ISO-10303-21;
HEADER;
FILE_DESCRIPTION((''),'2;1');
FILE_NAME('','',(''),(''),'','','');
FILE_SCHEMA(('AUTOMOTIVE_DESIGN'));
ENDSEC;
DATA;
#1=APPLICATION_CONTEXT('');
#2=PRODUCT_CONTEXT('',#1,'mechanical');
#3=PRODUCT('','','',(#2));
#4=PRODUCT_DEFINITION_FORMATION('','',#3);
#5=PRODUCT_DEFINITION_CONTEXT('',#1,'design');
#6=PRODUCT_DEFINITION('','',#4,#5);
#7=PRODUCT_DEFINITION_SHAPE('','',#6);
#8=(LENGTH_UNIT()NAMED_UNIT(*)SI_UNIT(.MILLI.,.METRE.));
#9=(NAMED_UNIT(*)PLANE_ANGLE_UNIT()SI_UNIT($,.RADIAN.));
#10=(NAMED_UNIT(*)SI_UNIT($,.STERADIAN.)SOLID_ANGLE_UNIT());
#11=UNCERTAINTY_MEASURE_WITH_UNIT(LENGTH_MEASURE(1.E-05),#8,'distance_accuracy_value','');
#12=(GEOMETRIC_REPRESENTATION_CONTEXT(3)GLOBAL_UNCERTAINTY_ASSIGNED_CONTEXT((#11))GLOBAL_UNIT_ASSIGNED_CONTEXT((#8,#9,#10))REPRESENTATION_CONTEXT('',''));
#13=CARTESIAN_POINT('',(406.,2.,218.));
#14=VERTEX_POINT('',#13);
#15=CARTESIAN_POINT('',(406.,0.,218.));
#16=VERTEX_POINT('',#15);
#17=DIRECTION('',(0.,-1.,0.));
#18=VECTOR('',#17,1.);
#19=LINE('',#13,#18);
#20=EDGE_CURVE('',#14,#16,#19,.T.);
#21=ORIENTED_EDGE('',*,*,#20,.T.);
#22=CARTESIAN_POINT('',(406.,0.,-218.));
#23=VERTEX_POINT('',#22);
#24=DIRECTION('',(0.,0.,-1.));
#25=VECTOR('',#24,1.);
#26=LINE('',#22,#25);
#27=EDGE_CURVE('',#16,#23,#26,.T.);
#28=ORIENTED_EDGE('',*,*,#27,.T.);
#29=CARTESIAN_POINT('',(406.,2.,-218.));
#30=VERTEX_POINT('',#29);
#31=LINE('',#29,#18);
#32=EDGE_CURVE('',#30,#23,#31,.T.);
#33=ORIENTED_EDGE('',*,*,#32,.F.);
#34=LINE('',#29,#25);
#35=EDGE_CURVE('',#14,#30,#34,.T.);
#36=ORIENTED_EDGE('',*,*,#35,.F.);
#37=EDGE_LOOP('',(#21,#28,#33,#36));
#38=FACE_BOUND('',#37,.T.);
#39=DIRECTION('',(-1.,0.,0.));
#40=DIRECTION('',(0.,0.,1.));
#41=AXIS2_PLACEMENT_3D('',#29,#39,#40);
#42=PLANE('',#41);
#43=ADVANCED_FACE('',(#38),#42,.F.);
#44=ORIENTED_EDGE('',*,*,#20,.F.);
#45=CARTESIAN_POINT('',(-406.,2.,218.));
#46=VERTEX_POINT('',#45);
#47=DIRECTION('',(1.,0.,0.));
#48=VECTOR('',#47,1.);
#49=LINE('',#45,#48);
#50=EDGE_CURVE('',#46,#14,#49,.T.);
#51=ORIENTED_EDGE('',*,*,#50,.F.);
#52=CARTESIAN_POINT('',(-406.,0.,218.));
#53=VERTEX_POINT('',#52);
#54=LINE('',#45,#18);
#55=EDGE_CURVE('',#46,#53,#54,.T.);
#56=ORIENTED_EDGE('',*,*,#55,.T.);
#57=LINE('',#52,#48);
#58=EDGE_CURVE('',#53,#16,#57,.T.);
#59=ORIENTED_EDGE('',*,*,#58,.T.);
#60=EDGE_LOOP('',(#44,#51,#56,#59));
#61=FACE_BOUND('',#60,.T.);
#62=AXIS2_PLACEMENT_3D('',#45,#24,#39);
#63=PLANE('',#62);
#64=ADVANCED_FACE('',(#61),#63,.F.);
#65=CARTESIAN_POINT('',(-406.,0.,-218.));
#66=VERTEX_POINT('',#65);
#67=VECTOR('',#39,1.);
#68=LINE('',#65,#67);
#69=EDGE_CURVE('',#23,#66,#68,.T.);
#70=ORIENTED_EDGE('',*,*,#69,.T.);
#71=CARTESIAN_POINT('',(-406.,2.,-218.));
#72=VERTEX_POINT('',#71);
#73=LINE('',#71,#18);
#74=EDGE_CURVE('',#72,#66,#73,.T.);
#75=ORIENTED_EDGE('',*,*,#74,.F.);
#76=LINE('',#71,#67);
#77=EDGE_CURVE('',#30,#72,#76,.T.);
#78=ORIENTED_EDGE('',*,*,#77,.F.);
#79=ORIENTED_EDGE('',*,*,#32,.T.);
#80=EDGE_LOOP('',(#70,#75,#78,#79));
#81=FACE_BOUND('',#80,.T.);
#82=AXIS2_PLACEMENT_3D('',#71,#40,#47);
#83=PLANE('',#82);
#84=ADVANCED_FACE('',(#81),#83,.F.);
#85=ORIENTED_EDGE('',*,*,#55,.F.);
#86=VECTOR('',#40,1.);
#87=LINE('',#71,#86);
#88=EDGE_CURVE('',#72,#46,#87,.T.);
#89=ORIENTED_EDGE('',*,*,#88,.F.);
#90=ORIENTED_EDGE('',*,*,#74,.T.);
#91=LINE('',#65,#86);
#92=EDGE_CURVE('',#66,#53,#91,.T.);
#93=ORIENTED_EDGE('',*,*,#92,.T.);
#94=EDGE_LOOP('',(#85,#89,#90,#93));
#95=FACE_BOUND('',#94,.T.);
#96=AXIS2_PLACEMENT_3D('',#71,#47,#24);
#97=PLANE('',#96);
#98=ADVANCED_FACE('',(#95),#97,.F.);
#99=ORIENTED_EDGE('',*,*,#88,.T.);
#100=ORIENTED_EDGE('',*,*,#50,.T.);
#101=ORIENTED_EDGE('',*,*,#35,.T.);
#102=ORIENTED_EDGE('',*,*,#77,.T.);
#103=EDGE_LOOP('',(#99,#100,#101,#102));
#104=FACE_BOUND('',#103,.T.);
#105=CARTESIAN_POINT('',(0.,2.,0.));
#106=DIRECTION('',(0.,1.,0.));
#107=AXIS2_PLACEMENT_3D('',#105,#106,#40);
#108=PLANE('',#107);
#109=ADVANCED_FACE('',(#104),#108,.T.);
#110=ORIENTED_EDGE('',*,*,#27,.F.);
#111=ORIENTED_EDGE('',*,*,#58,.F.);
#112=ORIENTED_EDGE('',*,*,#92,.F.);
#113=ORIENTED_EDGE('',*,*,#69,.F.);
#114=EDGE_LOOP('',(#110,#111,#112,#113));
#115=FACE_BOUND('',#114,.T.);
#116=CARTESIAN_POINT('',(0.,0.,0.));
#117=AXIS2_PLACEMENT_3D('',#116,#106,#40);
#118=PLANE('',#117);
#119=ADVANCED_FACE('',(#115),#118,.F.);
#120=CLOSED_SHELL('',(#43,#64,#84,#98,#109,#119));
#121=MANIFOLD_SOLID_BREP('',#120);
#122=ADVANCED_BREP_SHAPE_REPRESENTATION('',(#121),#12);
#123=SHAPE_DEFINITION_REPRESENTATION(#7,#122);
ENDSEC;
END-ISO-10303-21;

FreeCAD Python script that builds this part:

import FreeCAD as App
import Part
import Sketcher
from FreeCAD import Vector


def add_polygon(sketch, points):
    """Adds a closed chain of lines whose ends are joined by coincident constraints."""
    first, n = sketch.GeometryCount, len(points)
    for a, b in zip(points, points[1:] + points[:1]):
        sketch.addGeometry(Part.LineSegment(App.Vector(*a, 0), App.Vector(*b, 0)), False)
    for i in range(n):
        sketch.addConstraint(Sketcher.Constraint("Coincident", first + i, 2, first + (i + 1) % n, 1))

doc = App.newDocument("Part")
body = doc.addObject("PartDesign::Body", "Body")

# Sketch on XZ plane
sketch1 = body.newObject("Sketcher::SketchObject", "Sketch")
sketch1.AttachmentSupport = (doc.getObject("XZ_Plane"), [""])
sketch1.MapMode = "FlatFace"
add_polygon(sketch1, [(-406, -218), (-406, 218), (406, 218), (406, -218)])  # lines 0-3
sketch1.addConstraint([
    Sketcher.Constraint("Vertical", 0),
    Sketcher.Constraint("Horizontal", 1),
    Sketcher.Constraint("Vertical", 2),
    Sketcher.Constraint("Horizontal", 3),
    Sketcher.Constraint("Symmetric", 0, 2, 2, 2, -1, 1),
    Sketcher.Constraint("DistanceX", 1, 1, 1, 2, 812.0),
    Sketcher.Constraint("DistanceY", 0, 1, 0, 2, 436.0),
])
pad1 = body.newObject("PartDesign::Pad", "Pad")
pad1.Profile = sketch1
pad1.Length = 2
pad1.Reversed = True

doc.recompute()
